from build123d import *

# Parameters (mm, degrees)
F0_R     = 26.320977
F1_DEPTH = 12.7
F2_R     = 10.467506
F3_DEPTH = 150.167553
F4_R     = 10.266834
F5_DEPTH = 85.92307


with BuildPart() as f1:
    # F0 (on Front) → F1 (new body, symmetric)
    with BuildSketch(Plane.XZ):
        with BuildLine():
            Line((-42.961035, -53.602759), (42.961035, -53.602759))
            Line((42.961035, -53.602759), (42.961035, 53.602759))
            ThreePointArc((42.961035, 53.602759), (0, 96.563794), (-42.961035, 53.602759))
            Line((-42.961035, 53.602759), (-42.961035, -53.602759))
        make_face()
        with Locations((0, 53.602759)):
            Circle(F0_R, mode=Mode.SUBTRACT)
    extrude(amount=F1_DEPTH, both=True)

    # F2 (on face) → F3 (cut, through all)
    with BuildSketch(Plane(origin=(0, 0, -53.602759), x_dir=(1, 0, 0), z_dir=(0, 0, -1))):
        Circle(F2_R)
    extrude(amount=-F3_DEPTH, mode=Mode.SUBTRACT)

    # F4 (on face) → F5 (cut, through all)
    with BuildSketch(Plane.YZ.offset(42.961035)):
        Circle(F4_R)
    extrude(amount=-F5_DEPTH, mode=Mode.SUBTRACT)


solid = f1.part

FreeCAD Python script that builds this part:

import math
import FreeCAD as App
import Part
import Sketcher

V = App.Vector
Q = App.Units.Quantity

doc = App.newDocument("Part")
body = doc.addObject("PartDesign::Body", "Body")

sketch1 = body.newObject("Sketcher::SketchObject", "Sketch")
sketch1.AttachmentSupport = (doc.getObject("XZ_Plane"), [""])
sketch1.MapMode = "FlatFace"
sketch1.addGeometry([
    Part.LineSegment(V(-43, -54, 0), V(43, -54, 0)),
    Part.LineSegment(V(43, -54, 0), V(43, 54, 0)),
    Part.ArcOfCircle(Part.Circle(V(0, 54, 0), V(0, 0, 1), 43), math.radians(0), math.radians(180)),
    Part.LineSegment(V(-43, 54, 0), V(-43, -54, 0)),
    Part.Circle(V(0, 54, 0), V(0, 0, 1), 26),
], False)
sketch1.addConstraint([
    Sketcher.Constraint("Coincident", 0, 2, 1, 1),
    Sketcher.Constraint("Tangent", 1, 2, 2, 1),
    Sketcher.Constraint("Tangent", 2, 2, 3, 1),
    Sketcher.Constraint("Coincident", 3, 2, 0, 1),
    Sketcher.Constraint("Horizontal", 0),
    Sketcher.Constraint("Vertical", 1),
    Sketcher.Constraint("Vertical", 3),
    Sketcher.Constraint("Coincident", 4, 3, 2, 3),
    Sketcher.Constraint("Symmetric", 0, 2, 2, 2, -1, 1),
    Sketcher.Constraint("Diameter", 4, 52.641954),
    Sketcher.Constraint("Radius", 2, 42.961035),
    Sketcher.Constraint("DistanceY", 1, 1, 1, 2, 107.205518),
])
pad1 = body.newObject("PartDesign::Pad", "Pad")
pad1.Profile = sketch1
pad1.Length = Q("1 in")
pad1.Midplane = True

sketch2 = body.newObject("Sketcher::SketchObject", "Sketch001")
sketch2.AttachmentSupport = (doc.getObject("XY_Plane"), [""])
sketch2.MapMode = "FlatFace"
sketch2.AttachmentOffset = App.Placement(V(0, 0, -53.602759), App.Rotation())
sketch2.addGeometry(Part.Circle(V(0, 0, 0), V(0, 0, 1), 10), False)
sketch2.addConstraint([
    Sketcher.Constraint("Coincident", 0, 3, -1, 1),
    Sketcher.Constraint("Diameter", 0, 20.935012),
])
pocket1 = body.newObject("PartDesign::Pocket", "Pocket")
pocket1.Profile = sketch2
pocket1.Type = "ThroughAll"
pocket1.Reversed = True

sketch3 = body.newObject("Sketcher::SketchObject", "Sketch002")
sketch3.AttachmentSupport = (doc.getObject("YZ_Plane"), [""])
sketch3.MapMode = "FlatFace"
sketch3.AttachmentOffset = App.Placement(V(0, 0, 42.961035), App.Rotation())
sketch3.addGeometry(Part.Circle(V(0, 0, 0), V(0, 0, 1), 10), False)
sketch3.addConstraint([
    Sketcher.Constraint("Coincident", 0, 3, -1, 1),
    Sketcher.Constraint("Diameter", 0, 20.533668),
])
pocket2 = body.newObject("PartDesign::Pocket", "Pocket001")
pocket2.Profile = sketch3
pocket2.Type = "ThroughAll"

doc.recompute()
